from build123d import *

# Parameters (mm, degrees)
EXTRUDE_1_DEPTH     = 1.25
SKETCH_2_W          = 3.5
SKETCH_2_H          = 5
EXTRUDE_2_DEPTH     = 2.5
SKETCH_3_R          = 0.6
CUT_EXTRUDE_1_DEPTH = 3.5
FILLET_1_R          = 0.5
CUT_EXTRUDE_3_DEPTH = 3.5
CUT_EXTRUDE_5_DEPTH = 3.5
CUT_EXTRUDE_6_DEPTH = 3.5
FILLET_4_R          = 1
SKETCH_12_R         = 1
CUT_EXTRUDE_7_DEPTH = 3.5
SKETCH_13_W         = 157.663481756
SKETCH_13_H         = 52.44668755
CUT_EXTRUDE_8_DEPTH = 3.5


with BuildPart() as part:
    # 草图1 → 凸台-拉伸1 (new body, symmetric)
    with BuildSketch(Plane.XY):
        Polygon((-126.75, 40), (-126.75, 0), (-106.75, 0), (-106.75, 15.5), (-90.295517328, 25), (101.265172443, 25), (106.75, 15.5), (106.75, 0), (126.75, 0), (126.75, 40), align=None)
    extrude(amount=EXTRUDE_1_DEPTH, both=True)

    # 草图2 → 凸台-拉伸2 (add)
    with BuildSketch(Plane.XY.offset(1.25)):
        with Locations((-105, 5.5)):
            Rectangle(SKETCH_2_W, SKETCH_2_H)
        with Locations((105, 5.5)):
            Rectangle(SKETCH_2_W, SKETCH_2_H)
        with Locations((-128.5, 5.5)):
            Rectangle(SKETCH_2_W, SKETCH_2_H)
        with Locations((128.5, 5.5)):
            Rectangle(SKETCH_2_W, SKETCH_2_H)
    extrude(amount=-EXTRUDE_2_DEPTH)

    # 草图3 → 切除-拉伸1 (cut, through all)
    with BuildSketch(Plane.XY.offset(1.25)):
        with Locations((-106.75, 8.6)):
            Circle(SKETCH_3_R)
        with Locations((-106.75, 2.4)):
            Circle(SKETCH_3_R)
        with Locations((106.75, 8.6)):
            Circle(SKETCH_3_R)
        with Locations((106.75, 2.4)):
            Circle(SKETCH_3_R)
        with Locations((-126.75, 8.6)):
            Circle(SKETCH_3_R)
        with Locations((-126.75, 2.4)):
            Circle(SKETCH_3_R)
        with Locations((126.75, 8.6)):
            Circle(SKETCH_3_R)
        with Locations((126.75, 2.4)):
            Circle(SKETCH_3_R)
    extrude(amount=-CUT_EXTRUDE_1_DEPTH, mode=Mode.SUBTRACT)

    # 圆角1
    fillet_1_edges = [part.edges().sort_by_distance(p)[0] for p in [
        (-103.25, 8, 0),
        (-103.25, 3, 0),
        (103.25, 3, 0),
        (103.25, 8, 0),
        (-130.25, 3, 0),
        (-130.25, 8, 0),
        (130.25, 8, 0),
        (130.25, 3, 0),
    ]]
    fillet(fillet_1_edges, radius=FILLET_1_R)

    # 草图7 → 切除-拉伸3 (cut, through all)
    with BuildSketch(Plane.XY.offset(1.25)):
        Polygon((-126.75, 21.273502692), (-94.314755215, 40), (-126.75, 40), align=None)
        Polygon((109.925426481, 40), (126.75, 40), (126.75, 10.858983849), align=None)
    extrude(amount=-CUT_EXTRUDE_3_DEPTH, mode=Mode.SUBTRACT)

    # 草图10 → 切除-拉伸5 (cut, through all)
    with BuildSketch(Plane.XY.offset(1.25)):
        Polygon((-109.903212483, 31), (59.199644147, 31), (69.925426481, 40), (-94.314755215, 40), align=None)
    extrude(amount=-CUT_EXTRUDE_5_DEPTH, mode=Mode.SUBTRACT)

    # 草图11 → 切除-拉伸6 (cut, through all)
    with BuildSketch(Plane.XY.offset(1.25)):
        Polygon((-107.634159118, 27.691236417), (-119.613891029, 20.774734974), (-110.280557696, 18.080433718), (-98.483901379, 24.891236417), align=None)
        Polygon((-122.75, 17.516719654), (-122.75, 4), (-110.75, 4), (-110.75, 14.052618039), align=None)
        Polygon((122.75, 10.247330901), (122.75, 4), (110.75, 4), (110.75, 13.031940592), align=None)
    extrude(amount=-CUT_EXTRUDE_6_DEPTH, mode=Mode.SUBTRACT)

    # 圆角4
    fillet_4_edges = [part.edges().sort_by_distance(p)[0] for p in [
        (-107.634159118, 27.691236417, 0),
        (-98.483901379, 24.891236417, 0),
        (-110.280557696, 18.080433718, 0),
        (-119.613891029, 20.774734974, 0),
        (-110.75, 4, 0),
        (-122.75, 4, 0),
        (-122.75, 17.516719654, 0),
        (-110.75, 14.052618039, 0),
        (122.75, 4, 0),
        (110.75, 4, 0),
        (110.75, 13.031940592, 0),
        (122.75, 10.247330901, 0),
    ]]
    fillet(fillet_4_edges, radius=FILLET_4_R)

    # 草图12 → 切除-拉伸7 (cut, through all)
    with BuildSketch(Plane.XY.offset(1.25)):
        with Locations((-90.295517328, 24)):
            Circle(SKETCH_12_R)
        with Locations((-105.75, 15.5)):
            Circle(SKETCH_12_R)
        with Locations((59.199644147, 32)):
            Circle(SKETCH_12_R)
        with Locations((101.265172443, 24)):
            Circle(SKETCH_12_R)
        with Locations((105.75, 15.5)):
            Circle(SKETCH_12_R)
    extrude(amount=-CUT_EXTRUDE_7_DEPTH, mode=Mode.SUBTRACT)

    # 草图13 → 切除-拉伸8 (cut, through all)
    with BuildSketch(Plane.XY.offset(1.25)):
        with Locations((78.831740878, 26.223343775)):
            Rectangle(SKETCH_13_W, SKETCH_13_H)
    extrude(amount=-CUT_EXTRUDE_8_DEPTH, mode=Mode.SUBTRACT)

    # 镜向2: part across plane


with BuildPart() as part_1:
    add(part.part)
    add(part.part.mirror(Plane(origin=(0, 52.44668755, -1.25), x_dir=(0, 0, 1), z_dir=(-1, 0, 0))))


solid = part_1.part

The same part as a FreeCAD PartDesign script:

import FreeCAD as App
import Part
import Sketcher
Q = App.Units.Quantity


def edges_at(feature, points):
    """Names of the edges that pass closest to the given points."""
    edges = feature.Shape.Edges
    near = lambda p: min(range(len(edges)), key=lambda i: edges[i].distToShape(Part.Vertex(*p))[0])
    return sorted({f"Edge{near(p) + 1}" for p in points})


def add_polygon(sketch, points):
    """Adds a closed chain of lines whose ends are joined by coincident constraints."""
    first, n = sketch.GeometryCount, len(points)
    for a, b in zip(points, points[1:] + points[:1]):
        sketch.addGeometry(Part.LineSegment(App.Vector(*a, 0), App.Vector(*b, 0)), False)
    for i in range(n):
        sketch.addConstraint(Sketcher.Constraint("Coincident", first + i, 2, first + (i + 1) % n, 1))

doc = App.newDocument("Part")
body = doc.addObject("PartDesign::Body", "Body")

# Sketch on XY plane
sketch1 = body.newObject("Sketcher::SketchObject", "Sketch")
sketch1.AttachmentSupport = (doc.getObject("XY_Plane"), [""])
sketch1.MapMode = "FlatFace"
add_polygon(sketch1, [(-127, 40), (-127, 0), (-107, 0), (-107, 16), (-90, 25), (101, 25), (107, 16), (107, 0), (127, 0), (127, 40)])  # lines 0-9
sketch1.addConstraint([
    Sketcher.Constraint("Vertical", 0),
    Sketcher.Constraint("Horizontal", 1),
    Sketcher.Constraint("Vertical", 2),
    Sketcher.Constraint("Horizontal", 4),
    Sketcher.Constraint("Vertical", 6),
    Sketcher.Constraint("Horizontal", 7),
    Sketcher.Constraint("Vertical", 8),
    Sketcher.Constraint("Horizontal", 9),
    Sketcher.Constraint("Symmetric", 1, 2, 6, 2, -1, 1),
    Sketcher.Constraint("Symmetric", 0, 2, 7, 2, -2),
    Sketcher.Constraint("Perpendicular", 3, 5),
    Sketcher.Constraint("Horizontal", 2, 2, 5, 2),
    Sketcher.Constraint("DistanceX", 1, 1, 1, 2, 20.0),
    Sketcher.Constraint("DistanceY", 0, 2, 0, 1, 40.0),
    Sketcher.Constraint("Angle", 3, Q("30 deg")),
    Sketcher.Constraint("Distance", 3, 19.0),
    Sketcher.Constraint("DistanceX", 9, 2, 9, 1, 253.5),
    Sketcher.Constraint("DistanceY", 2, 1, 2, 2, 15.5),
])
pad1 = body.newObject("PartDesign::Pad", "Pad")
pad1.Profile = sketch1
pad1.Length = 2.5
pad1.Midplane = True

# Sketch on XY plane
sketch2 = body.newObject("Sketcher::SketchObject", "Sketch001")
sketch2.AttachmentSupport = (doc.getObject("XY_Plane"), [""])
sketch2.MapMode = "FlatFace"
sketch2.AttachmentOffset = App.Placement(App.Vector(0, 0, 1.25), App.Rotation())
add_polygon(sketch2, [(-106.8, 8), (-106.8, 3), (-103.2, 3), (-103.2, 8)])  # lines 0-3
add_polygon(sketch2, [(103.2, 8), (103.2, 3), (106.8, 3), (106.8, 8)])  # lines 4-7
add_polygon(sketch2, [(-130.2, 8), (-130.2, 3), (-126.8, 3), (-126.8, 8)])  # lines 8-11
add_polygon(sketch2, [(126.8, 8), (126.8, 3), (130.2, 3), (130.2, 8)])  # lines 12-15
sketch2.addConstraint([
    Sketcher.Constraint("Vertical", 0),
    Sketcher.Constraint("Horizontal", 1),
    Sketcher.Constraint("Vertical", 2),
    Sketcher.Constraint("Horizontal", 3),
    Sketcher.Constraint("Vertical", 4),
    Sketcher.Constraint("Horizontal", 5),
    Sketcher.Constraint("Vertical", 6),
    Sketcher.Constraint("Horizontal", 7),
    Sketcher.Constraint("Vertical", 8),
    Sketcher.Constraint("Horizontal", 9),
    Sketcher.Constraint("Vertical", 10),
    Sketcher.Constraint("Horizontal", 11),
    Sketcher.Constraint("Vertical", 12),
    Sketcher.Constraint("Horizontal", 13),
    Sketcher.Constraint("Vertical", 14),
    Sketcher.Constraint("Horizontal", 15),
    Sketcher.Constraint("Symmetric", 1, 2, 4, 2, -2),
    Sketcher.Constraint("Symmetric", 3, 2, 6, 2, -2),
    Sketcher.Constraint("Symmetric", 9, 2, 12, 2, -2),
    Sketcher.Constraint("Symmetric", 11, 2, 14, 2, -2),
    Sketcher.Constraint("Horizontal", 5, 2, 8, 2),
    Sketcher.Constraint("Horizontal", 7, 2, 10, 2),
    Sketcher.Constraint("Equal", 7, 9),
    Sketcher.Constraint("DistanceY", 0, 2, 0, 1, 5.0),
    Sketcher.Constraint("DistanceX", 1, 1, 1, 2, 3.5),
    Sketcher.Constraint("DistanceY", -1, 1, 0, 2, 3.0),
    Sketcher.Constraint("DistanceX", 0, 2, 4, 2, 210.0),
    Sketcher.Constraint("DistanceX", 8, 2, 1, 2, 27.0),
])
pad2 = body.newObject("PartDesign::Pad", "Pad001")
pad2.Profile = sketch2
pad2.Length = 2.5
pad2.Reversed = True

# Sketch on XY plane
sketch3 = body.newObject("Sketcher::SketchObject", "Sketch002")
sketch3.AttachmentSupport = (doc.getObject("XY_Plane"), [""])
sketch3.MapMode = "FlatFace"
sketch3.AttachmentOffset = App.Placement(App.Vector(0, 0, 1.25), App.Rotation())
sketch3.addGeometry([
    Part.Circle(App.Vector(-106.8, 8.6, 0), App.Vector(0, 0, 1), 0.6),  # 0
    Part.Circle(App.Vector(-106.8, 2.4, 0), App.Vector(0, 0, 1), 0.6),  # 1
    Part.Circle(App.Vector(106.8, 8.6, 0), App.Vector(0, 0, 1), 0.6),  # 2
    Part.Circle(App.Vector(106.8, 2.4, 0), App.Vector(0, 0, 1), 0.6),  # 3
    Part.Circle(App.Vector(-126.8, 8.6, 0), App.Vector(0, 0, 1), 0.6),  # 4
    Part.Circle(App.Vector(-126.8, 2.4, 0), App.Vector(0, 0, 1), 0.6),  # 5
    Part.Circle(App.Vector(126.8, 8.6, 0), App.Vector(0, 0, 1), 0.6),  # 6
    Part.Circle(App.Vector(126.8, 2.4, 0), App.Vector(0, 0, 1), 0.6),  # 7
], False)
sketch3.addConstraint([
    Sketcher.Constraint("Equal", 0, 1),
    Sketcher.Constraint("Equal", 1, 2),
    Sketcher.Constraint("Equal", 2, 3),
    Sketcher.Constraint("Equal", 3, 4),
    Sketcher.Constraint("Equal", 4, 5),
    Sketcher.Constraint("Equal", 5, 6),
    Sketcher.Constraint("Equal", 6, 7),
    Sketcher.Constraint("Symmetric", 0, 3, 2, 3, -2),
    Sketcher.Constraint("Symmetric", 1, 3, 3, 3, -2),
    Sketcher.Constraint("Symmetric", 4, 3, 6, 3, -2),
    Sketcher.Constraint("Symmetric", 5, 3, 7, 3, -2),
    Sketcher.Constraint("Horizontal", 2, 3, 4, 3),
    Sketcher.Constraint("Horizontal", 3, 3, 5, 3),
    Sketcher.Constraint("Vertical", 0, 3, 1, 3),
    Sketcher.Constraint("Vertical", 4, 3, 5, 3),
    Sketcher.Constraint("Diameter", 0, 1.2),
    Sketcher.Constraint("DistanceX", 4, 3, 0, 3, 20.0),
    Sketcher.Constraint("DistanceY", -1, 1, 0, 3, 8.6),
    Sketcher.Constraint("DistanceY", -1, 1, 1, 3, 2.4),
    Sketcher.Constraint("DistanceX", 0, 3, 2, 3, 213.5),
])
pocket1 = body.newObject("PartDesign::Pocket", "Pocket")
pocket1.Profile = sketch3
pocket1.Type = "ThroughAll"
doc.recompute()

fillet = body.newObject("PartDesign::Fillet", "Fillet")
fillet.Base = (pocket1, edges_at(pocket1, [
    (-103.25, 8, 0),
    (-103.25, 3, 0),
    (103.25, 3, 0),
    (103.25, 8, 0),
    (-130.25, 3, 0),
    (-130.25, 8, 0),
    (130.25, 8, 0),
    (130.25, 3, 0),
]))
fillet.Radius = 0.5

# Sketch on XY plane
sketch4 = body.newObject("Sketcher::SketchObject", "Sketch003")
sketch4.AttachmentSupport = (doc.getObject("XY_Plane"), [""])
sketch4.MapMode = "FlatFace"
sketch4.AttachmentOffset = App.Placement(App.Vector(0, 0, 1.25), App.Rotation())
add_polygon(sketch4, [(-127, 21), (-94, 40), (-127, 40)])  # lines 0-2
add_polygon(sketch4, [(127, 40), (110, 40), (127, 11)])  # lines 3-5
sketch4.addConstraint([
    Sketcher.Constraint("Horizontal", 1),
    Sketcher.Constraint("Vertical", 2),
    Sketcher.Constraint("Horizontal", 3),
    Sketcher.Constraint("Vertical", 5),
    Sketcher.Constraint("Symmetric", 1, 2, 5, 2, -2),
    Sketcher.Constraint("Perpendicular", 0, 4),
    Sketcher.Constraint("Angle", 0, Q("30 deg")),
    Sketcher.Constraint("DistanceY", -1, 1, 0, 2, 40.0),
    Sketcher.Constraint("DistanceX", 2, 2, 4, 2, 253.5),
    Sketcher.Constraint("DistanceX", 1, 2, 1, 1, 32.435245),
    Sketcher.Constraint("DistanceX", 3, 2, 3, 1, 16.824574),
])
pocket2 = body.newObject("PartDesign::Pocket", "Pocket001")
pocket2.Profile = sketch4
pocket2.Type = "ThroughAll"

# Sketch on XY plane
sketch5 = body.newObject("Sketcher::SketchObject", "Sketch004")
sketch5.AttachmentSupport = (doc.getObject("XY_Plane"), [""])
sketch5.MapMode = "FlatFace"
sketch5.AttachmentOffset = App.Placement(App.Vector(0, 0, 1.25), App.Rotation())
add_polygon(sketch5, [(-110, 31), (59, 31), (70, 40), (-94, 40)])  # lines 0-3
sketch5.addConstraint([
    Sketcher.Constraint("Horizontal", 0),
    Sketcher.Constraint("Horizontal", 2),
    Sketcher.Constraint("Angle", 1, Q("40 deg")),
    Sketcher.Constraint("Angle", 3, Q("-150 deg")),
    Sketcher.Constraint("Distance", 3, 18.0),
    Sketcher.Constraint("DistanceY", -1, 1, 0, 2, 31.0),
    Sketcher.Constraint("DistanceX", 2, 2, 2, 1, 164.240182),
    Sketcher.Constraint("DistanceX", -1, 1, 0, 2, 59.199644),
])
pocket3 = body.newObject("PartDesign::Pocket", "Pocket002")
pocket3.Profile = sketch5
pocket3.Type = "ThroughAll"

# Sketch on XY plane
sketch6 = body.newObject("Sketcher::SketchObject", "Sketch005")
sketch6.AttachmentSupport = (doc.getObject("XY_Plane"), [""])
sketch6.MapMode = "FlatFace"
sketch6.AttachmentOffset = App.Placement(App.Vector(0, 0, 1.25), App.Rotation())
add_polygon(sketch6, [(-108, 28), (-120, 21), (-110, 18), (-98, 25)])  # lines 0-3
add_polygon(sketch6, [(-123, 18), (-123, 4), (-111, 4), (-111, 14)])  # lines 4-7
add_polygon(sketch6, [(123, 4), (123, 10), (111, 13), (111, 4)])  # lines 8-11
sketch6.addConstraint([
    Sketcher.Constraint("Vertical", 4),
    Sketcher.Constraint("Horizontal", 5),
    Sketcher.Constraint("Vertical", 6),
    Sketcher.Constraint("Vertical", 8),
    Sketcher.Constraint("Vertical", 10),
    Sketcher.Constraint("Horizontal", 11),
    Sketcher.Constraint("Symmetric", 5, 2, 10, 2, -2),
    Sketcher.Constraint("Parallel", 0, 2),
    Sketcher.Constraint("Parallel", 1, 7),
    Sketcher.Constraint("Equal", 5, 11),
    Sketcher.Constraint("DistanceX", 5, 1, 5, 2, 12.0),
    Sketcher.Constraint("Angle", 0, Q("-150 deg")),
    Sketcher.Constraint("DistanceY", -1, 1, 4, 2, 4.0),
    Sketcher.Constraint("DistanceY", 2, 2, 3, 2, 2.8),
    Sketcher.Constraint("DistanceX", 6, 2, 8, 2, 233.5),
    Sketcher.Constraint("DistanceY", 4, 2, 4, 1, 13.51672),
    Sketcher.Constraint("DistanceY", 6, 1, 6, 2, 10.052618),
    Sketcher.Constraint("DistanceY", 8, 1, 8, 2, 6.247331),
    Sketcher.Constraint("DistanceY", 10, 2, 10, 1, 9.031941),
    Sketcher.Constraint("DistanceX", 2, 2, -1, 1, 98.483901),
    Sketcher.Constraint("DistanceY", 1, 2, 0, 2, 2.694301),
    Sketcher.Constraint("DistanceY", 0, 2, 2, 2, 4.116501),
    Sketcher.Constraint("DistanceY", 6, 2, 3, 2, 13.638618),
])
pocket4 = body.newObject("PartDesign::Pocket", "Pocket003")
pocket4.Profile = sketch6
pocket4.Type = "ThroughAll"
doc.recompute()

fillet2 = body.newObject("PartDesign::Fillet", "Fillet001")
fillet2.Base = (pocket4, edges_at(pocket4, [
    (-107.634, 27.691, 0),
    (-98.484, 24.891, 0),
    (-110.281, 18.08, 0),
    (-119.614, 20.775, 0),
    (-110.75, 4, 0),
    (-122.75, 4, 0),
    (-122.75, 17.517, 0),
    (-110.75, 14.053, 0),
    (122.75, 4, 0),
    (110.75, 4, 0),
    (110.75, 13.032, 0),
    (122.75, 10.247, 0),
]))
fillet2.Radius = 1

# Sketch on XY plane
sketch7 = body.newObject("Sketcher::SketchObject", "Sketch006")
sketch7.AttachmentSupport = (doc.getObject("XY_Plane"), [""])
sketch7.MapMode = "FlatFace"
sketch7.AttachmentOffset = App.Placement(App.Vector(0, 0, 1.25), App.Rotation())
sketch7.addGeometry([
    Part.Circle(App.Vector(-90.3, 24, 0), App.Vector(0, 0, 1), 1),  # 0
    Part.Circle(App.Vector(-105.8, 15.5, 0), App.Vector(0, 0, 1), 1),  # 1
    Part.Circle(App.Vector(59.2, 32, 0), App.Vector(0, 0, 1), 1),  # 2
    Part.Circle(App.Vector(101.3, 24, 0), App.Vector(0, 0, 1), 1),  # 3
    Part.Circle(App.Vector(105.8, 15.5, 0), App.Vector(0, 0, 1), 1),  # 4
], False)
sketch7.addConstraint([
    Sketcher.Constraint("Equal", 0, 1),
    Sketcher.Constraint("Equal", 1, 2),
    Sketcher.Constraint("Equal", 2, 3),
    Sketcher.Constraint("Equal", 3, 4),
    Sketcher.Constraint("Symmetric", 1, 3, 4, 3, -2),
    Sketcher.Constraint("Horizontal", 0, 3, 3, 3),
    Sketcher.Constraint("Diameter", 0, 2.0),
    Sketcher.Constraint("DistanceY", -1, 1, 0, 3, 24.0),
    Sketcher.Constraint("DistanceY", -1, 1, 2, 3, 32.0),
    Sketcher.Constraint("DistanceY", -1, 1, 1, 3, 15.5),
    Sketcher.Constraint("DistanceX", 1, 3, 4, 3, 211.5),
    Sketcher.Constraint("DistanceX", 0, 3, 2, 3, 149.495161),
    Sketcher.Constraint("DistanceX", 2, 3, 3, 3, 42.065528),
    Sketcher.Constraint("DistanceX", 0, 3, -1, 1, 90.295517),
])
pocket5 = body.newObject("PartDesign::Pocket", "Pocket004")
pocket5.Profile = sketch7
pocket5.Type = "ThroughAll"

# Sketch on XY plane
sketch8 = body.newObject("Sketcher::SketchObject", "Sketch007")
sketch8.AttachmentSupport = (doc.getObject("XY_Plane"), [""])
sketch8.MapMode = "FlatFace"
sketch8.AttachmentOffset = App.Placement(App.Vector(0, 0, 1.25), App.Rotation())
add_polygon(sketch8, [(0, 52), (0, 0), (158, 0), (158, 52)])  # lines 0-3
sketch8.addConstraint([
    Sketcher.Constraint("Vertical", 0),
    Sketcher.Constraint("Horizontal", 1),
    Sketcher.Constraint("Vertical", 2),
    Sketcher.Constraint("Horizontal", 3),
    Sketcher.Constraint("Coincident", 0, 2, -1, 1),
    Sketcher.Constraint("DistanceX", 1, 1, 1, 2, 157.663482),
    Sketcher.Constraint("DistanceY", 0, 2, 0, 1, 52.446688),
])
pocket6 = body.newObject("PartDesign::Pocket", "Pocket005")
pocket6.Profile = sketch8
pocket6.Type = "ThroughAll"
body2 = doc.addObject("PartDesign::Body", "Body001")
doc.recompute()

body2.BaseFeature = body
doc.recompute()

mirroring = doc.addObject("Part::Mirroring", "Mirroring")
mirroring.Source = body
mirroring.Base = App.Vector(0, 52.446688, -1.25)
mirroring.Normal = App.Vector(-1, 0, 0)
body3 = doc.addObject("PartDesign::Body", "Body002")
body3.BaseFeature = mirroring
boolean = body2.newObject("PartDesign::Boolean", "Boolean")
boolean.Type = "Fuse"
boolean.addObjects([body3])
doc.recompute()
mirroring.Visibility = False

doc.recompute()
